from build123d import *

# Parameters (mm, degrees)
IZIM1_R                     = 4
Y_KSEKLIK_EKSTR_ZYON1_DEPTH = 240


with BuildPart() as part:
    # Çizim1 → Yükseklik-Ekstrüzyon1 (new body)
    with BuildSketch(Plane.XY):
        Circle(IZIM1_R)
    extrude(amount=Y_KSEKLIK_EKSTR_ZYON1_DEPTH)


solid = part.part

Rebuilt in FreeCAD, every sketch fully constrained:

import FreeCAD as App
import Part
import Sketcher

V = App.Vector

doc = App.newDocument("Part")
body = doc.addObject("PartDesign::Body", "Body")

# Sketch on XY plane
sketch1 = body.newObject("Sketcher::SketchObject", "Sketch")
sketch1.AttachmentSupport = (doc.getObject("XY_Plane"), [""])
sketch1.MapMode = "FlatFace"
sketch1.addGeometry(Part.Circle(V(0, 0, 0), V(0, 0, 1), 4), False)
sketch1.addConstraint(Sketcher.Constraint("Coincident", 0, 3, -1, 1))
sketch1.addConstraint(Sketcher.Constraint("Diameter", 0, 8.0))
pad1 = body.newObject("PartDesign::Pad", "Pad")
pad1.Profile = sketch1
pad1.Length = 240

doc.recompute()
